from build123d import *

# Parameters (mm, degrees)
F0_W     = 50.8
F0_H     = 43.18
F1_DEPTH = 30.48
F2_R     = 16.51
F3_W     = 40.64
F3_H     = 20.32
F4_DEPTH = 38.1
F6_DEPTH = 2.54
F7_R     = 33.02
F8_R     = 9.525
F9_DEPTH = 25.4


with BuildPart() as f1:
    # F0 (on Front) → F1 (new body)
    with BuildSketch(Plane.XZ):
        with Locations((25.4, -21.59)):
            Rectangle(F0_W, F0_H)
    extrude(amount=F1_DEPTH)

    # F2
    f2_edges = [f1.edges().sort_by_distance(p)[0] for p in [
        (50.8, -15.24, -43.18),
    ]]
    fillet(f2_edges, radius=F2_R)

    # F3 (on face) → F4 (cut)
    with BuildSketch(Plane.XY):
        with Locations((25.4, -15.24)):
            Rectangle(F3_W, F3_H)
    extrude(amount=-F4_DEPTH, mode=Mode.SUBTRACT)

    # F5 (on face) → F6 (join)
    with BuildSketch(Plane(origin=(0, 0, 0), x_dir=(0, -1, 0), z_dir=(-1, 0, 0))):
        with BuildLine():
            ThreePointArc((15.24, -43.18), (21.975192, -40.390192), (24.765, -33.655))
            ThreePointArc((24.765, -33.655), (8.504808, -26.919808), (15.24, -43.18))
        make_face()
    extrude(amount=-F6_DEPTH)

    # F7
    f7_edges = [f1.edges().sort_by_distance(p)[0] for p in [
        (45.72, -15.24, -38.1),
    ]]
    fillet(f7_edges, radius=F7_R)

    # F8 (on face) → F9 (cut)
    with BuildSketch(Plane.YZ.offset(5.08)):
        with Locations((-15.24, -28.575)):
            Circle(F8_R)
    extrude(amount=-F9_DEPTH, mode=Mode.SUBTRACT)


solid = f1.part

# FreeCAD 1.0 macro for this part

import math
import FreeCAD as App
import Part
import Sketcher
Q = App.Units.Quantity


def edges_at(feature, points):
    """Names of the edges that pass closest to the given points."""
    edges = feature.Shape.Edges
    near = lambda p: min(range(len(edges)), key=lambda i: edges[i].distToShape(Part.Vertex(*p))[0])
    return sorted({f"Edge{near(p) + 1}" for p in points})


def add_polygon(sketch, points):
    """Adds a closed chain of lines whose ends are joined by coincident constraints."""
    first, n = sketch.GeometryCount, len(points)
    for a, b in zip(points, points[1:] + points[:1]):
        sketch.addGeometry(Part.LineSegment(App.Vector(*a, 0), App.Vector(*b, 0)), False)
    for i in range(n):
        sketch.addConstraint(Sketcher.Constraint("Coincident", first + i, 2, first + (i + 1) % n, 1))

doc = App.newDocument("Part")
params = doc.addObject("Spreadsheet::Sheet", "Params")
for row, (alias, value) in enumerate([
    ("sketch1_width", "2 in"),
    ("sketch1_height", "1.7 in"),
    ("pad1_length", "1.2 in"),
    ("fillet_radius", "0.65 in"),
    ("sketch2_width", "1.6 in"),
    ("sketch2_height", "0.8 in"),
    ("pocket1_length", "1.5 in"),
    ("sketch3_radius", "0.375 in"),
    ("pad2_length", "0.1 in"),
    ("fillet2_radius", "1.3 in"),
    ("sketch4_diameter", "0.75 in"),
    ("pocket2_length", "1 in"),
], start=1):
    params.set(f"A{row}", alias)
    params.set(f"B{row}", "=" + value)
    params.setAlias(f"B{row}", alias)

body = doc.addObject("PartDesign::Body", "Body")

# Sketch on XZ plane
sketch1 = doc.addObject("Sketcher::SketchObject", "Sketch")
body.addObject(sketch1)
sketch1.AttachmentSupport = (doc.XZ_Plane, [""])
sketch1.MapMode = "FlatFace"
add_polygon(sketch1, [(0, 0), (0, -43), (51, -43), (51, 0)])  # lines 0-3
sketch1.addConstraint(Sketcher.Constraint("Vertical", 0))
sketch1.addConstraint(Sketcher.Constraint("Horizontal", 1))
sketch1.addConstraint(Sketcher.Constraint("Vertical", 2))
sketch1.addConstraint(Sketcher.Constraint("Horizontal", 3))
sketch1.addConstraint(Sketcher.Constraint("Coincident", 3, 2, -1, 1))
sketch1.addConstraint(Sketcher.Constraint("DistanceX", 1, 1, 1, 2, Q("2 in")))
sketch1.addConstraint(Sketcher.Constraint("DistanceY", 0, 2, 0, 1, Q("1.7 in")))
sketch1.setExpression("Constraints[9]", "Params.sketch1_width")
sketch1.setExpression("Constraints[10]", "Params.sketch1_height")
pad1 = doc.addObject("PartDesign::Pad", "Pad")
body.addObject(pad1)
pad1.Profile = sketch1
pad1.setExpression("Length", "Params.pad1_length")
doc.recompute()

fillet = doc.addObject("PartDesign::Fillet", "Fillet")
body.addObject(fillet)
fillet.Base = (pad1, edges_at(pad1, [(50.8, -15.24, -43.18)]))
fillet.setExpression("Radius", "Params.fillet_radius")

# Sketch on XY plane
sketch2 = doc.addObject("Sketcher::SketchObject", "Sketch001")
body.addObject(sketch2)
sketch2.AttachmentSupport = (doc.XY_Plane, [""])
sketch2.MapMode = "FlatFace"
add_polygon(sketch2, [(5, -5), (5, -25), (46, -25), (46, -5)])  # lines 0-3
sketch2.addConstraint(Sketcher.Constraint("Vertical", 0))
sketch2.addConstraint(Sketcher.Constraint("Horizontal", 1))
sketch2.addConstraint(Sketcher.Constraint("Vertical", 2))
sketch2.addConstraint(Sketcher.Constraint("Horizontal", 3))
sketch2.addConstraint(Sketcher.Constraint("DistanceX", 1, 1, 1, 2, Q("1.6 in")))
sketch2.addConstraint(Sketcher.Constraint("DistanceY", 0, 2, 0, 1, Q("0.8 in")))
sketch2.addConstraint(Sketcher.Constraint("DistanceY", 0, 2, -1, 1, Q("1 in")))
sketch2.addConstraint(Sketcher.Constraint("DistanceX", -1, 1, 0, 2, Q("0.2 in")))
sketch2.setExpression("Constraints[8]", "Params.sketch2_width")
sketch2.setExpression("Constraints[9]", "Params.sketch2_height")
pocket1 = doc.addObject("PartDesign::Pocket", "Pocket")
body.addObject(pocket1)
pocket1.Profile = sketch2
pocket1.setExpression("Length", "Params.pocket1_length")

# Sketch on YZ plane
sketch3 = doc.addObject("Sketcher::SketchObject", "Sketch002")
body.addObject(sketch3)
sketch3.AttachmentSupport = (doc.YZ_Plane, [""])
sketch3.MapMode = "FlatFace"
sketch3.addGeometry(Part.ArcOfCircle(Part.Circle(App.Vector(-15, -34, 0), App.Vector(0, 0, 1), 10), math.radians(-180), math.radians(-90)), False)
sketch3.addGeometry(Part.ArcOfCircle(Part.Circle(App.Vector(-15, -34, 0), App.Vector(0, 0, 1), 10), math.radians(-90), math.radians(180)), False)
sketch3.addConstraint(Sketcher.Constraint("Tangent", 0, 1, 1, 2))
sketch3.addConstraint(Sketcher.Constraint("Coincident", 1, 1, 0, 2))
sketch3.addConstraint(Sketcher.Constraint("Horizontal", 1, 3, 0, 1))
sketch3.addConstraint(Sketcher.Constraint("Vertical", 0, 3, 1, 1))
sketch3.addConstraint(Sketcher.Constraint("Radius", 0, Q("0.375 in")))
sketch3.addConstraint(Sketcher.Constraint("DistanceX", 0, 3, -1, 1, Q("0.6 in")))
sketch3.addConstraint(Sketcher.Constraint("DistanceY", 1, 1, -1, 1, Q("1.7 in")))
sketch3.setExpression("Constraints[4]", "Params.sketch3_radius")
pad2 = doc.addObject("PartDesign::Pad", "Pad001")
body.addObject(pad2)
pad2.Profile = sketch3
pad2.setExpression("Length", "Params.pad2_length")
doc.recompute()

fillet2 = doc.addObject("PartDesign::Fillet", "Fillet001")
body.addObject(fillet2)
fillet2.Base = (pad2, edges_at(pad2, [(45.72, -15.24, -38.1)]))
fillet2.setExpression("Radius", "Params.fillet2_radius")

# Sketch on YZ plane
sketch4 = doc.addObject("Sketcher::SketchObject", "Sketch003")
body.addObject(sketch4)
sketch4.AttachmentSupport = (doc.YZ_Plane, [""])
sketch4.MapMode = "FlatFace"
sketch4.AttachmentOffset = App.Placement(App.Vector(0, 0, 0.2 * 25.4), App.Rotation())
sketch4.addGeometry(Part.Circle(App.Vector(-15, -29, 0), App.Vector(0, 0, 1), 10), False)
sketch4.addConstraint(Sketcher.Constraint("Diameter", 0, Q("0.75 in")))
sketch4.addConstraint(Sketcher.Constraint("DistanceX", 0, 3, -1, 1, Q("0.6 in")))
sketch4.addConstraint(Sketcher.Constraint("DistanceY", 0, 3, -1, 1, Q("1.125 in")))
sketch4.setExpression("Constraints[0]", "Params.sketch4_diameter")
pocket2 = doc.addObject("PartDesign::Pocket", "Pocket001")
body.addObject(pocket2)
pocket2.Profile = sketch4
pocket2.setExpression("Length", "Params.pocket2_length")

doc.recompute()
